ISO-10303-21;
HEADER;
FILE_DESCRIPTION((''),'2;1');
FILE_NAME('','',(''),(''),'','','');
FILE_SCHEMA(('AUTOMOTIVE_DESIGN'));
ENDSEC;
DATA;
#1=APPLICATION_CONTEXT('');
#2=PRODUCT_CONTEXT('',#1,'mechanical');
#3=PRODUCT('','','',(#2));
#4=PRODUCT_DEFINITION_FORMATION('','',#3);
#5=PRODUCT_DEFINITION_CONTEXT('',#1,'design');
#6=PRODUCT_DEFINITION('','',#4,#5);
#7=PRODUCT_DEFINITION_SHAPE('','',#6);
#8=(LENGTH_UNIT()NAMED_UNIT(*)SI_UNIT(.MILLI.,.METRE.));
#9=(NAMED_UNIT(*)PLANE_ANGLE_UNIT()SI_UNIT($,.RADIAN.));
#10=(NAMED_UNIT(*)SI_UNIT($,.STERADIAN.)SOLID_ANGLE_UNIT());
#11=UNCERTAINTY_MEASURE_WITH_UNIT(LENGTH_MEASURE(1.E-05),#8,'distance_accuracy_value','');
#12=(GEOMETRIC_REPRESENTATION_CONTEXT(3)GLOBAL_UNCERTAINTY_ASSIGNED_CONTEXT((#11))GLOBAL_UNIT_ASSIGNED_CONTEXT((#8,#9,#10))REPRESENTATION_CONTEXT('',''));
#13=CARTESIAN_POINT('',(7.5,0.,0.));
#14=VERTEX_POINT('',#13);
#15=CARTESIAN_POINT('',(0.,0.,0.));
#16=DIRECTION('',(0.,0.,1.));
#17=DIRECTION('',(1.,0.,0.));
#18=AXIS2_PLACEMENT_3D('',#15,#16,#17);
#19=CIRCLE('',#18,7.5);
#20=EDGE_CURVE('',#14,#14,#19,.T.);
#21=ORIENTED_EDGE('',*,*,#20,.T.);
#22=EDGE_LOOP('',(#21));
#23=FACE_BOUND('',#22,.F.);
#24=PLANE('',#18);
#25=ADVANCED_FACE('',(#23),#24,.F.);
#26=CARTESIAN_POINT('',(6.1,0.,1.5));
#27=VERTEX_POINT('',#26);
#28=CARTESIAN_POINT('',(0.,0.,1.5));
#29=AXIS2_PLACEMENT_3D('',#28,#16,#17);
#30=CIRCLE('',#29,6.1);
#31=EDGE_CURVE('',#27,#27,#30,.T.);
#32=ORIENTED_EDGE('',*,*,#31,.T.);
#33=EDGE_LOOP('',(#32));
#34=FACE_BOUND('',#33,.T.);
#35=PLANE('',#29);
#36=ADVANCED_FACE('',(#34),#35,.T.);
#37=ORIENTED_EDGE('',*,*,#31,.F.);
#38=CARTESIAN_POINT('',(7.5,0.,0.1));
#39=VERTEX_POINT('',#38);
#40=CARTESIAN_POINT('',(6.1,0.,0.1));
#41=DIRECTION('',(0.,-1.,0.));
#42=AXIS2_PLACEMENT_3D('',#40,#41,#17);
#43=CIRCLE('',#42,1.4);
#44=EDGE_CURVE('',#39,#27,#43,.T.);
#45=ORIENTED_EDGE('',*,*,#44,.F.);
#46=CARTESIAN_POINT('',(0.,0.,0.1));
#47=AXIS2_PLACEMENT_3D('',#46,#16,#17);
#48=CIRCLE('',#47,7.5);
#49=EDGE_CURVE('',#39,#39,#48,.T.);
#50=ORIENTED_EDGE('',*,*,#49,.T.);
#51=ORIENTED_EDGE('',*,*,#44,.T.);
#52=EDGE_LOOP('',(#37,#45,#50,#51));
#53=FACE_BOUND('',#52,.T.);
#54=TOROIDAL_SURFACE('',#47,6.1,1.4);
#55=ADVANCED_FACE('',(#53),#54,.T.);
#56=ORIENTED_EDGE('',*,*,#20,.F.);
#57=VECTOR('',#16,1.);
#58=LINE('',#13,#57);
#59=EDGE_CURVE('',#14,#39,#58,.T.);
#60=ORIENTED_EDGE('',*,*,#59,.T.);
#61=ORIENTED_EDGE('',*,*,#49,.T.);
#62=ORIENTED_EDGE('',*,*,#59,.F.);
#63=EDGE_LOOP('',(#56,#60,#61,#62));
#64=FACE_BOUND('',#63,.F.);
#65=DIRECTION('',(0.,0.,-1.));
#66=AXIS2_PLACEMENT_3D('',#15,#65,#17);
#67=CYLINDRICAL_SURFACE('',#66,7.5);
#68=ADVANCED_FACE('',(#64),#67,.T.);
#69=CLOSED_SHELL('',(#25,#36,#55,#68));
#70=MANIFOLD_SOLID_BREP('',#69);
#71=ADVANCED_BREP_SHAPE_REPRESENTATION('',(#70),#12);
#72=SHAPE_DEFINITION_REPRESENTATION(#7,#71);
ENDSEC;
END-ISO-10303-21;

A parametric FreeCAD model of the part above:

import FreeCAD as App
import Part
import Sketcher
Q = App.Units.Quantity


def edges_at(feature, points):
    """Names of the edges that pass closest to the given points."""
    edges = feature.Shape.Edges
    near = lambda p: min(range(len(edges)), key=lambda i: edges[i].distToShape(Part.Vertex(*p))[0])
    return sorted({f"Edge{near(p) + 1}" for p in points})

doc = App.newDocument("Part")
body = doc.addObject("PartDesign::Body", "Body")

sketch1 = body.newObject("Sketcher::SketchObject", "Sketch")
sketch1.AttachmentSupport = (doc.getObject("XY_Plane"), [""])
sketch1.MapMode = "FlatFace"
sketch1.addGeometry(Part.Circle(App.Vector(0, 0, 0), App.Vector(0, 0, 1), 8), False)
sketch1.addConstraint(Sketcher.Constraint("Coincident", 0, 3, -1, 1))
sketch1.addConstraint(Sketcher.Constraint("Diameter", 0, Q("15 mm")))
pad1 = body.newObject("PartDesign::Pad", "Pad")
pad1.Profile = sketch1
pad1.Length = 1.5
doc.recompute()

fillet = body.newObject("PartDesign::Fillet", "Fillet")
fillet.Base = (pad1, edges_at(pad1, [(-7.5, 0, 1.5)]))
fillet.Radius = 1.4

doc.recompute()
